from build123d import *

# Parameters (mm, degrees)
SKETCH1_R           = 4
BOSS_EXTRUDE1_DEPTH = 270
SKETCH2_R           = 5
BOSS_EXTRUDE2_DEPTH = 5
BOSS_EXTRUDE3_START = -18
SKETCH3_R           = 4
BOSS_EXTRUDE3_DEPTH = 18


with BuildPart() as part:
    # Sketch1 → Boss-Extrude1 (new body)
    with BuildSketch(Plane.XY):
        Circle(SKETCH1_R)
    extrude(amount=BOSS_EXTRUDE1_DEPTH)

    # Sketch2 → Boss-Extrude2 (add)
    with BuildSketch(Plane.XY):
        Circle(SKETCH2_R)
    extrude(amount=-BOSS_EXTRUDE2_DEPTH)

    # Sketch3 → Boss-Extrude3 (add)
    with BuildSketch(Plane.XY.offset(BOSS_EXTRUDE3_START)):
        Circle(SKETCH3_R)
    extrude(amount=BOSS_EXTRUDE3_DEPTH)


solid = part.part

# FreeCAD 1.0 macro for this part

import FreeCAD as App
import Part
import Sketcher
from FreeCAD import Vector

doc = App.newDocument("Part")
body = doc.addObject("PartDesign::Body", "Body")

# Sketch on XY plane
sketch1 = body.newObject("Sketcher::SketchObject", "Sketch")
sketch1.AttachmentSupport = (doc.getObject("XY_Plane"), [""])
sketch1.MapMode = "FlatFace"
sketch1.addGeometry(Part.Circle(Vector(0, 0, 0), Vector(0, 0, 1), 4), False)
sketch1.addConstraint([
    Sketcher.Constraint("Coincident", 0, 3, -1, 1),
    Sketcher.Constraint("Diameter", 0, 8.0),
])
pad1 = body.newObject("PartDesign::Pad", "Pad")
pad1.Profile = sketch1
pad1.Length = 270

# Sketch on XY plane
sketch2 = body.newObject("Sketcher::SketchObject", "Sketch001")
sketch2.AttachmentSupport = (doc.getObject("XY_Plane"), [""])
sketch2.MapMode = "FlatFace"
sketch2.addGeometry(Part.Circle(Vector(0, 0, 0), Vector(0, 0, 1), 5), False)
sketch2.addConstraint([
    Sketcher.Constraint("Coincident", 0, 3, -1, 1),
    Sketcher.Constraint("Diameter", 0, 10.0),
])
pad2 = body.newObject("PartDesign::Pad", "Pad001")
pad2.Profile = sketch2
pad2.Length = 5
pad2.Reversed = True

# Sketch on XY plane
sketch3 = body.newObject("Sketcher::SketchObject", "Sketch002")
sketch3.AttachmentSupport = (doc.getObject("XY_Plane"), [""])
sketch3.MapMode = "FlatFace"
sketch3.AttachmentOffset = App.Placement(Vector(0, 0, -18), App.Rotation())
sketch3.addGeometry(Part.Circle(Vector(0, 0, 0), Vector(0, 0, 1), 4), False)
sketch3.addConstraint([
    Sketcher.Constraint("Coincident", 0, 3, -1, 1),
    Sketcher.Constraint("Diameter", 0, 8.0),
])
pad3 = body.newObject("PartDesign::Pad", "Pad002")
pad3.Profile = sketch3
pad3.Length = 18

doc.recompute()
